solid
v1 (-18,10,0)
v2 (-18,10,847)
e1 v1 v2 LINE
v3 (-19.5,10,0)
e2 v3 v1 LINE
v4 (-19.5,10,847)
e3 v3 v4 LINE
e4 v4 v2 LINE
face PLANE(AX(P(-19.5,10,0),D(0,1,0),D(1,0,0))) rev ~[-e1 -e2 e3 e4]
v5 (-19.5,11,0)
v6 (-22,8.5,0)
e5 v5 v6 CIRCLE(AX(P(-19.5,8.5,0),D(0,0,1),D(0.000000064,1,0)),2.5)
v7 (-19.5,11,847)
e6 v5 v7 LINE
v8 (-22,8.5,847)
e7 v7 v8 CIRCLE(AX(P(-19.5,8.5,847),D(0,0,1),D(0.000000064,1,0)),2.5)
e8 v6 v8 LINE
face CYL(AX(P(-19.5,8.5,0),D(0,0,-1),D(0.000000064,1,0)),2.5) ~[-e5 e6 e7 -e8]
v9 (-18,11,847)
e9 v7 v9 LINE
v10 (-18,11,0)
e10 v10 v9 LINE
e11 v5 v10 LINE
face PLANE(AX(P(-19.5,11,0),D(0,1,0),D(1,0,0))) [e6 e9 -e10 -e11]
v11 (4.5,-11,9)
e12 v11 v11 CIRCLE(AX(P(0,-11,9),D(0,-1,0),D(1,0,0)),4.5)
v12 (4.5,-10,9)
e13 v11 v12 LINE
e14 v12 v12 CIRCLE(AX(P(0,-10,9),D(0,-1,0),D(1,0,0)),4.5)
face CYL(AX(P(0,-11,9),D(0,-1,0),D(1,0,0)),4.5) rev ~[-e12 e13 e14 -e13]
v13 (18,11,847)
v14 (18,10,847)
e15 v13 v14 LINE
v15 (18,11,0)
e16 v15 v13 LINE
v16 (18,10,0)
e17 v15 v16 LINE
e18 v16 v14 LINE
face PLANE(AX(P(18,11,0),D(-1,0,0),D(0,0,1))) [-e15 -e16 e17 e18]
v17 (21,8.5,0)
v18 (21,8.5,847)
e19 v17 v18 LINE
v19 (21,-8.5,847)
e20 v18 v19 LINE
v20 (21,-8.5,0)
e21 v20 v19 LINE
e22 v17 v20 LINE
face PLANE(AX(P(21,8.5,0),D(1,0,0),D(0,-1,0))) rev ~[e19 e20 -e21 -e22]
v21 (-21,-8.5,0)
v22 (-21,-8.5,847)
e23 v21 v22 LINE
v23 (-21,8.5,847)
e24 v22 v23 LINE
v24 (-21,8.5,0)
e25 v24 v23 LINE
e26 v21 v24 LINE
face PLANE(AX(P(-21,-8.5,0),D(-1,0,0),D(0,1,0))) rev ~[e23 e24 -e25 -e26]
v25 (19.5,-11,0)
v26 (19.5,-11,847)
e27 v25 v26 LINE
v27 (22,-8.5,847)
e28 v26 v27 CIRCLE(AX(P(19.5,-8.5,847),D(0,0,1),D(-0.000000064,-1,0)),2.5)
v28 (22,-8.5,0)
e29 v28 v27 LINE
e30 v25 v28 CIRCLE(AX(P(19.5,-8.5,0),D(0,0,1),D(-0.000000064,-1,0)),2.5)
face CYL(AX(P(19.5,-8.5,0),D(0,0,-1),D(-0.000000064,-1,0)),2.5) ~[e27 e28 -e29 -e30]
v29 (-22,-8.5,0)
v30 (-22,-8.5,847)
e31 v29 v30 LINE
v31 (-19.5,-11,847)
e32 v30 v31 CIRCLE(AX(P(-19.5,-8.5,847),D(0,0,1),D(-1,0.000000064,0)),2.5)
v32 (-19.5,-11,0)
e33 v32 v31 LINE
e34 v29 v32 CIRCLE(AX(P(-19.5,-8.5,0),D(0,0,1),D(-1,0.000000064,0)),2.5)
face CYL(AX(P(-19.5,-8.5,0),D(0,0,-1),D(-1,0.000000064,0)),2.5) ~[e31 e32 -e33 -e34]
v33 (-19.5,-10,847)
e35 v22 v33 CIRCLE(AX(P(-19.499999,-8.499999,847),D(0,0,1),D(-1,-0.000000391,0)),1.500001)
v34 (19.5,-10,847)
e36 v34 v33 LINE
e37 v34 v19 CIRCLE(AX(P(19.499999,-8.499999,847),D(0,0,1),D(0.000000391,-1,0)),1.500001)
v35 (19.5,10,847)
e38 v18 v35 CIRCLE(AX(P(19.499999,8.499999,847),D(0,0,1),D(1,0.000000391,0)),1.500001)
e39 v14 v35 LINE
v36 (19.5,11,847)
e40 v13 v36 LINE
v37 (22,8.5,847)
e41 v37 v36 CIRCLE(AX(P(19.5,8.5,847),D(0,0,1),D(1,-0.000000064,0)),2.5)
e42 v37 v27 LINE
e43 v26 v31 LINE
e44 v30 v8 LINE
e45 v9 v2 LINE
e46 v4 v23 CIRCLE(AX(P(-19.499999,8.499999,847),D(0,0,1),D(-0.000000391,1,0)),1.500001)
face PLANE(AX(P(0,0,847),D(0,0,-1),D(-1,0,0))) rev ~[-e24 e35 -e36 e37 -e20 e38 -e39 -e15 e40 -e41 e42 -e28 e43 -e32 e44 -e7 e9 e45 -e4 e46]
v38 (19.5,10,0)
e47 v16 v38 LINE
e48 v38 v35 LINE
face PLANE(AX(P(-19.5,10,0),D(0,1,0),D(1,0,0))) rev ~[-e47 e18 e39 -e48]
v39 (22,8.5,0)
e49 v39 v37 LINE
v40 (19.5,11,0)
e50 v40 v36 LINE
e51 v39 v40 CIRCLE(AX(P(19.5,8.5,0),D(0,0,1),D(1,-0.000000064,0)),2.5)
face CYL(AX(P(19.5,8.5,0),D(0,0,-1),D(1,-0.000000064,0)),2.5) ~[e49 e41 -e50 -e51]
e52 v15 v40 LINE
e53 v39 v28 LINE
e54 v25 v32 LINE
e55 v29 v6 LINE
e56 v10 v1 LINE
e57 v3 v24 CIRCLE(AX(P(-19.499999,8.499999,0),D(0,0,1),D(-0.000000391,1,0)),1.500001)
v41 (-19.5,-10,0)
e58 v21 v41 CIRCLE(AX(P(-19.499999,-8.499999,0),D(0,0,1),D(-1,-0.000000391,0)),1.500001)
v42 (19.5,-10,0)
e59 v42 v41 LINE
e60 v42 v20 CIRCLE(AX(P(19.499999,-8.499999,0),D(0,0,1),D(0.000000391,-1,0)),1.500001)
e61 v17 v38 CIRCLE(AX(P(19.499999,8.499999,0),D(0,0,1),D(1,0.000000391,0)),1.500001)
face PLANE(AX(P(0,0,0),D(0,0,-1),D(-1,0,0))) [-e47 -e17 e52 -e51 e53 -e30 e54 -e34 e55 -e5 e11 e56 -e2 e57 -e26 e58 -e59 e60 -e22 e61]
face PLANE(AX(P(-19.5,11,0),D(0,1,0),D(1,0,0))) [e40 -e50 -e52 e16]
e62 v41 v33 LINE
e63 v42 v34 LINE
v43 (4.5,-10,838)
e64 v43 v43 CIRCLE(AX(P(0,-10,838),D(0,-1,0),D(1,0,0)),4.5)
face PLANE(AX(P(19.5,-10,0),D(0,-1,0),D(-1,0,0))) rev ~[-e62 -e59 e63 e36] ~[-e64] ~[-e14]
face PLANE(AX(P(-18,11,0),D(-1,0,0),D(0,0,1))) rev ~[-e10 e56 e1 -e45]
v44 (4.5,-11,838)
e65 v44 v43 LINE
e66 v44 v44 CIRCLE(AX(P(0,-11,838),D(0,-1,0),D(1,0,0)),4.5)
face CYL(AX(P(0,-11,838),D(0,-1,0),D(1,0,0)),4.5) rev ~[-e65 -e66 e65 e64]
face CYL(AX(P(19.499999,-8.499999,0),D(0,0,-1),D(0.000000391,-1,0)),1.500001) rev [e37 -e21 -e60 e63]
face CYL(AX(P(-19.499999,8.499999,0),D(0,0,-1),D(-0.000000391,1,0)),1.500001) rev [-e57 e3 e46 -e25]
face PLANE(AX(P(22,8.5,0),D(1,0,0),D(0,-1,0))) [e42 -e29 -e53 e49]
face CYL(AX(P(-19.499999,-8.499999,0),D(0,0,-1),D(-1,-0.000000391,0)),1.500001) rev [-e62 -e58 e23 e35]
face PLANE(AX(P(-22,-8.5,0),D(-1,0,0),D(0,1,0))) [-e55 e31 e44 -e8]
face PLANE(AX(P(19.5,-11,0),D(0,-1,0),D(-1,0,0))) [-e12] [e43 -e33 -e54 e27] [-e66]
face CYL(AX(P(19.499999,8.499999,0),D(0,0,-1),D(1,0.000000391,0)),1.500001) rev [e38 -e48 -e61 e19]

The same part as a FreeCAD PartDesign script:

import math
import FreeCAD as App
import Part
import Sketcher
from FreeCAD import Vector
Q = App.Units.Quantity


def add_polygon(sketch, points):
    """Adds a closed chain of lines whose ends are joined by coincident constraints."""
    first, n = sketch.GeometryCount, len(points)
    for a, b in zip(points, points[1:] + points[:1]):
        sketch.addGeometry(Part.LineSegment(App.Vector(*a, 0), App.Vector(*b, 0)), False)
    for i in range(n):
        sketch.addConstraint(Sketcher.Constraint("Coincident", first + i, 2, first + (i + 1) % n, 1))

doc = App.newDocument("Part")
body = doc.addObject("PartDesign::Body", "Body")

sketch1 = doc.addObject("Sketcher::SketchObject", "Sketch")
body.addObject(sketch1)
sketch1.AttachmentSupport = (doc.XY_Plane, [""])
sketch1.MapMode = "FlatFace"
sketch1.addGeometry(Part.LineSegment(Vector(19.5, 11, 0), Vector(-19.5, 11, 0)), False)
sketch1.addGeometry(Part.ArcOfCircle(Part.Circle(Vector(-19.5, 8.5, 0), Vector(0, 0, 1), 2.5), math.radians(89.999996), math.radians(180.000004)), False)
sketch1.addGeometry(Part.LineSegment(Vector(-22, 8.5, 0), Vector(-22, -8.5, 0)), False)
sketch1.addGeometry(Part.ArcOfCircle(Part.Circle(Vector(-19.5, -8.5, 0), Vector(0, 0, 1), 2.5), math.radians(179.999996), math.radians(270.000004)), False)
sketch1.addGeometry(Part.LineSegment(Vector(-19.5, -11, 0), Vector(19.5, -11, 0)), False)
sketch1.addGeometry(Part.ArcOfCircle(Part.Circle(Vector(19.5, -8.5, 0), Vector(0, 0, 1), 2.5), math.radians(-90.000004), math.radians(0.000004)), False)
sketch1.addGeometry(Part.LineSegment(Vector(22, -8.5, 0), Vector(22, 8.5, 0)), False)
sketch1.addGeometry(Part.ArcOfCircle(Part.Circle(Vector(19.5, 8.5, 0), Vector(0, 0, 1), 2.5), math.radians(-0.000004), math.radians(90.000004)), False)
sketch1.addGeometry(Part.LineSegment(Vector(-19.5, 10, 0), Vector(19.5, 10, 0)), False)
sketch1.addGeometry(Part.ArcOfCircle(Part.Circle(Vector(19.499999, 8.499999, 0), Vector(0, 0, 1), 1.500001), math.radians(0.000022), math.radians(89.999978)), False)
sketch1.addGeometry(Part.LineSegment(Vector(21, 8.5, 0), Vector(21, -8.5, 0)), False)
sketch1.addGeometry(Part.ArcOfCircle(Part.Circle(Vector(19.499999, -8.499999, 0), Vector(0, 0, 1), 1.500001), math.radians(-89.999978), math.radians(-0.000022)), False)
sketch1.addGeometry(Part.LineSegment(Vector(19.5, -10, 0), Vector(-19.5, -10, 0)), False)
sketch1.addGeometry(Part.ArcOfCircle(Part.Circle(Vector(-19.499999, -8.499999, 0), Vector(0, 0, 1), 1.500001), math.radians(-179.999978), math.radians(-90.000022)), False)
sketch1.addGeometry(Part.LineSegment(Vector(-21, -8.5, 0), Vector(-21, 8.5, 0)), False)
sketch1.addGeometry(Part.ArcOfCircle(Part.Circle(Vector(-19.499999, 8.499999, 0), Vector(0, 0, 1), 1.500001), math.radians(90.000022), math.radians(179.999978)), False)
sketch1.addConstraint(Sketcher.Constraint("Tangent", 0, 2, 1, 1))
sketch1.addConstraint(Sketcher.Constraint("Tangent", 1, 2, 2, 1))
sketch1.addConstraint(Sketcher.Constraint("Tangent", 2, 2, 3, 1))
sketch1.addConstraint(Sketcher.Constraint("Tangent", 3, 2, 4, 1))
sketch1.addConstraint(Sketcher.Constraint("Tangent", 4, 2, 5, 1))
sketch1.addConstraint(Sketcher.Constraint("Tangent", 5, 2, 6, 1))
sketch1.addConstraint(Sketcher.Constraint("Tangent", 6, 2, 7, 1))
sketch1.addConstraint(Sketcher.Constraint("Tangent", 7, 2, 0, 1))
sketch1.addConstraint(Sketcher.Constraint("Tangent", 8, 2, 9, 2))
sketch1.addConstraint(Sketcher.Constraint("Tangent", 9, 1, 10, 1))
sketch1.addConstraint(Sketcher.Constraint("Tangent", 10, 2, 11, 2))
sketch1.addConstraint(Sketcher.Constraint("Tangent", 11, 1, 12, 1))
sketch1.addConstraint(Sketcher.Constraint("Tangent", 12, 2, 13, 2))
sketch1.addConstraint(Sketcher.Constraint("Tangent", 13, 1, 14, 1))
sketch1.addConstraint(Sketcher.Constraint("Tangent", 14, 2, 15, 2))
sketch1.addConstraint(Sketcher.Constraint("Tangent", 15, 1, 8, 1))
sketch1.addConstraint(Sketcher.Constraint("Horizontal", 0))
sketch1.addConstraint(Sketcher.Constraint("Vertical", 2))
sketch1.addConstraint(Sketcher.Constraint("Horizontal", 4))
sketch1.addConstraint(Sketcher.Constraint("Vertical", 6))
sketch1.addConstraint(Sketcher.Constraint("Horizontal", 8))
sketch1.addConstraint(Sketcher.Constraint("Vertical", 10))
sketch1.addConstraint(Sketcher.Constraint("Horizontal", 12))
sketch1.addConstraint(Sketcher.Constraint("Vertical", 14))
sketch1.addConstraint(Sketcher.Constraint("Coincident", 9, 3, 7, 3))
sketch1.addConstraint(Sketcher.Constraint("Coincident", 11, 3, 5, 3))
sketch1.addConstraint(Sketcher.Constraint("Coincident", 13, 3, 3, 3))
sketch1.addConstraint(Sketcher.Constraint("Equal", 1, 3))
sketch1.addConstraint(Sketcher.Constraint("Equal", 3, 5))
sketch1.addConstraint(Sketcher.Constraint("Equal", 5, 7))
sketch1.addConstraint(Sketcher.Constraint("Equal", 13, 15))
sketch1.addConstraint(Sketcher.Constraint("Symmetric", 1, 3, 5, 3, -1, 1))
sketch1.addConstraint(Sketcher.Constraint("Radius", 1, Q("2.5 mm")))
sketch1.addConstraint(Sketcher.Constraint("Radius", 9, Q("1.500001 mm")))
sketch1.addConstraint(Sketcher.Constraint("DistanceX", 0, 2, 0, 1, Q("39 mm")))
sketch1.addConstraint(Sketcher.Constraint("DistanceY", 2, 2, 2, 1, Q("17 mm")))
pad1 = doc.addObject("PartDesign::Pad", "Pad")
body.addObject(pad1)
pad1.Profile = sketch1
pad1.Length = 847

sketch2 = doc.addObject("Sketcher::SketchObject", "Sketch001")
body.addObject(sketch2)
sketch2.AttachmentSupport = (doc.XZ_Plane, [""])
sketch2.MapMode = "FlatFace"
sketch2.AttachmentOffset = App.Placement(Vector(0, 0, 11), App.Rotation())
sketch2.addGeometry(Part.Circle(Vector(0, 9, 0), Vector(0, 0, 1), 4.5), False)
sketch2.addGeometry(Part.Circle(Vector(0, 838, 0), Vector(0, 0, 1), 4.5), False)
sketch2.addConstraint(Sketcher.Constraint("Equal", 0, 1))
sketch2.addConstraint(Sketcher.Constraint("PointOnObject", 0, 3, -2))
sketch2.addConstraint(Sketcher.Constraint("PointOnObject", 1, 3, -2))
sketch2.addConstraint(Sketcher.Constraint("Diameter", 0, Q("9 mm")))
sketch2.addConstraint(Sketcher.Constraint("DistanceY", -1, 1, 0, 3, Q("9 mm")))
sketch2.addConstraint(Sketcher.Constraint("DistanceY", -1, 1, 1, 3, Q("838 mm")))
pocket1 = doc.addObject("PartDesign::Pocket", "Pocket")
body.addObject(pocket1)
pocket1.Profile = sketch2
pocket1.Length = 5

sketch3 = doc.addObject("Sketcher::SketchObject", "Sketch002")
body.addObject(sketch3)
sketch3.AttachmentSupport = (doc.XZ_Plane, [""])
sketch3.MapMode = "FlatFace"
sketch3.AttachmentOffset = App.Placement(Vector(0, 0, -11), App.Rotation())
add_polygon(sketch3, [(18, 847), (18, 0), (-18, 0), (-18, 847)])
sketch3.addConstraint(Sketcher.Constraint("Vertical", 0))
sketch3.addConstraint(Sketcher.Constraint("Horizontal", 1))
sketch3.addConstraint(Sketcher.Constraint("Vertical", 2))
sketch3.addConstraint(Sketcher.Constraint("Horizontal", 3))
sketch3.addConstraint(Sketcher.Constraint("Symmetric", 0, 2, 1, 2, -1, 1))
sketch3.addConstraint(Sketcher.Constraint("DistanceX", 1, 2, 1, 1, Q("36 mm")))
sketch3.addConstraint(Sketcher.Constraint("DistanceY", 0, 2, 0, 1, Q("847 mm")))
pocket2 = doc.addObject("PartDesign::Pocket", "Pocket001")
body.addObject(pocket2)
pocket2.Profile = sketch3
pocket2.Length = 5
pocket2.Reversed = True

doc.recompute()
